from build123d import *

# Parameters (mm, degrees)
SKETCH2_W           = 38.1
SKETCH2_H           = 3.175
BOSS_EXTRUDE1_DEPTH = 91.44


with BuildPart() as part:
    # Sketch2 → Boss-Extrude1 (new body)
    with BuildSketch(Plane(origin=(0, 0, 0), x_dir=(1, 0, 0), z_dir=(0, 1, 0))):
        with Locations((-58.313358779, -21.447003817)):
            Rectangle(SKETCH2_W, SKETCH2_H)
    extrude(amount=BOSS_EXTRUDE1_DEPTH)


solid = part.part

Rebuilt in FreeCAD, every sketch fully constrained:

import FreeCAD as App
import Part
import Sketcher
Q = App.Units.Quantity


def add_polygon(sketch, points):
    """Adds a closed chain of lines whose ends are joined by coincident constraints."""
    first, n = sketch.GeometryCount, len(points)
    for a, b in zip(points, points[1:] + points[:1]):
        sketch.addGeometry(Part.LineSegment(App.Vector(*a, 0), App.Vector(*b, 0)), False)
    for i in range(n):
        sketch.addConstraint(Sketcher.Constraint("Coincident", first + i, 2, first + (i + 1) % n, 1))

doc = App.newDocument("Part")
body = doc.addObject("PartDesign::Body", "Body")

sketch1 = body.newObject("Sketcher::SketchObject", "Sketch")
sketch1.AttachmentSupport = (doc.getObject("XZ_Plane"), [""])
sketch1.MapMode = "FlatFace"
add_polygon(sketch1, [(-77.4, 19.9), (-77.4, 23), (-39.3, 23), (-39.3, 19.9)])
sketch1.addConstraint(Sketcher.Constraint("Vertical", 0))
sketch1.addConstraint(Sketcher.Constraint("Horizontal", 1))
sketch1.addConstraint(Sketcher.Constraint("Vertical", 2))
sketch1.addConstraint(Sketcher.Constraint("Horizontal", 3))
sketch1.addConstraint(Sketcher.Constraint("DistanceX", 1, 1, 1, 2, Q("1.5 in")))
sketch1.addConstraint(Sketcher.Constraint("DistanceY", 0, 1, 0, 2, Q("0.125 in")))
sketch1.addConstraint(Sketcher.Constraint("DistanceX", 0, 2, -1, 1, 77.363359))
sketch1.addConstraint(Sketcher.Constraint("DistanceY", -1, 1, 0, 2, 23.034504))
pad1 = body.newObject("PartDesign::Pad", "Pad")
pad1.Profile = sketch1
pad1.Length = Q("3.6 in")
pad1.Reversed = True

doc.recompute()
